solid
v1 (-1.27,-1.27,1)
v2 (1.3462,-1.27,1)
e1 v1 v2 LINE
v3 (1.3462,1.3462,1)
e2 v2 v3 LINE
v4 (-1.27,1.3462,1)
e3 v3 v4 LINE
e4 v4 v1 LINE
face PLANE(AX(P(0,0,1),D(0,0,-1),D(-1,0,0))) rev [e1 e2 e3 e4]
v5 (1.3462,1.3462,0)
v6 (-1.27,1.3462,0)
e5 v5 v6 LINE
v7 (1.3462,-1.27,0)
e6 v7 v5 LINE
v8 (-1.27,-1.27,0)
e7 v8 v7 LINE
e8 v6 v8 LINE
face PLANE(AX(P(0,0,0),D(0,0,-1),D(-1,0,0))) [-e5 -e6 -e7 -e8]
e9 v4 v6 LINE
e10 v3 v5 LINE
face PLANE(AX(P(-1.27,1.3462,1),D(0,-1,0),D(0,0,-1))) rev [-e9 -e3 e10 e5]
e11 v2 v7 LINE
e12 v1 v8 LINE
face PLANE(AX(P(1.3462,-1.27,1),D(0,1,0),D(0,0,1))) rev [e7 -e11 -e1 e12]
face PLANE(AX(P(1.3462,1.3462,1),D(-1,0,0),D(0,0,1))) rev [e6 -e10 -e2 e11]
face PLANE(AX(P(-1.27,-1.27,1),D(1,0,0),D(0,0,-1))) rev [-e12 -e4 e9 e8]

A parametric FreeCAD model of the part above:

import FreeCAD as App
import Part
import Sketcher
from FreeCAD import Vector
Q = App.Units.Quantity

doc = App.newDocument("Part")
body = doc.addObject("PartDesign::Body", "Body")

# Sketch on XY plane
sketch1 = body.newObject("Sketcher::SketchObject", "Sketch")
sketch1.AttachmentSupport = (doc.getObject("XY_Plane"), [""])
sketch1.MapMode = "FlatFace"
sketch1.addGeometry([
    Part.LineSegment(Vector(-1.27, 1.3462, 0), Vector(-1.27, -1.27, 0)),
    Part.LineSegment(Vector(-1.27, -1.27, 0), Vector(1.3462, -1.27, 0)),
    Part.LineSegment(Vector(1.3462, -1.27, 0), Vector(1.3462, 1.3462, 0)),
    Part.LineSegment(Vector(1.3462, 1.3462, 0), Vector(-1.27, 1.3462, 0)),
], False)
sketch1.addConstraint([
    Sketcher.Constraint("Coincident", 0, 2, 1, 1),
    Sketcher.Constraint("Coincident", 1, 2, 2, 1),
    Sketcher.Constraint("Coincident", 2, 2, 3, 1),
    Sketcher.Constraint("Coincident", 3, 2, 0, 1),
    Sketcher.Constraint("Vertical", 0),
    Sketcher.Constraint("Horizontal", 1),
    Sketcher.Constraint("Vertical", 2),
    Sketcher.Constraint("Horizontal", 3),
    Sketcher.Constraint("Equal", 3, 0),
    Sketcher.Constraint("DistanceX", 0, 2, -1, 1, Q("1.27 mm")),
    Sketcher.Constraint("DistanceY", 0, 2, -1, 1, Q("1.27 mm")),
    Sketcher.Constraint("DistanceX", 1, 1, 1, 2, Q("2.6162 mm")),
])
pad1 = body.newObject("PartDesign::Pad", "Pad")
pad1.Profile = sketch1
pad1.Length = 1

doc.recompute()
